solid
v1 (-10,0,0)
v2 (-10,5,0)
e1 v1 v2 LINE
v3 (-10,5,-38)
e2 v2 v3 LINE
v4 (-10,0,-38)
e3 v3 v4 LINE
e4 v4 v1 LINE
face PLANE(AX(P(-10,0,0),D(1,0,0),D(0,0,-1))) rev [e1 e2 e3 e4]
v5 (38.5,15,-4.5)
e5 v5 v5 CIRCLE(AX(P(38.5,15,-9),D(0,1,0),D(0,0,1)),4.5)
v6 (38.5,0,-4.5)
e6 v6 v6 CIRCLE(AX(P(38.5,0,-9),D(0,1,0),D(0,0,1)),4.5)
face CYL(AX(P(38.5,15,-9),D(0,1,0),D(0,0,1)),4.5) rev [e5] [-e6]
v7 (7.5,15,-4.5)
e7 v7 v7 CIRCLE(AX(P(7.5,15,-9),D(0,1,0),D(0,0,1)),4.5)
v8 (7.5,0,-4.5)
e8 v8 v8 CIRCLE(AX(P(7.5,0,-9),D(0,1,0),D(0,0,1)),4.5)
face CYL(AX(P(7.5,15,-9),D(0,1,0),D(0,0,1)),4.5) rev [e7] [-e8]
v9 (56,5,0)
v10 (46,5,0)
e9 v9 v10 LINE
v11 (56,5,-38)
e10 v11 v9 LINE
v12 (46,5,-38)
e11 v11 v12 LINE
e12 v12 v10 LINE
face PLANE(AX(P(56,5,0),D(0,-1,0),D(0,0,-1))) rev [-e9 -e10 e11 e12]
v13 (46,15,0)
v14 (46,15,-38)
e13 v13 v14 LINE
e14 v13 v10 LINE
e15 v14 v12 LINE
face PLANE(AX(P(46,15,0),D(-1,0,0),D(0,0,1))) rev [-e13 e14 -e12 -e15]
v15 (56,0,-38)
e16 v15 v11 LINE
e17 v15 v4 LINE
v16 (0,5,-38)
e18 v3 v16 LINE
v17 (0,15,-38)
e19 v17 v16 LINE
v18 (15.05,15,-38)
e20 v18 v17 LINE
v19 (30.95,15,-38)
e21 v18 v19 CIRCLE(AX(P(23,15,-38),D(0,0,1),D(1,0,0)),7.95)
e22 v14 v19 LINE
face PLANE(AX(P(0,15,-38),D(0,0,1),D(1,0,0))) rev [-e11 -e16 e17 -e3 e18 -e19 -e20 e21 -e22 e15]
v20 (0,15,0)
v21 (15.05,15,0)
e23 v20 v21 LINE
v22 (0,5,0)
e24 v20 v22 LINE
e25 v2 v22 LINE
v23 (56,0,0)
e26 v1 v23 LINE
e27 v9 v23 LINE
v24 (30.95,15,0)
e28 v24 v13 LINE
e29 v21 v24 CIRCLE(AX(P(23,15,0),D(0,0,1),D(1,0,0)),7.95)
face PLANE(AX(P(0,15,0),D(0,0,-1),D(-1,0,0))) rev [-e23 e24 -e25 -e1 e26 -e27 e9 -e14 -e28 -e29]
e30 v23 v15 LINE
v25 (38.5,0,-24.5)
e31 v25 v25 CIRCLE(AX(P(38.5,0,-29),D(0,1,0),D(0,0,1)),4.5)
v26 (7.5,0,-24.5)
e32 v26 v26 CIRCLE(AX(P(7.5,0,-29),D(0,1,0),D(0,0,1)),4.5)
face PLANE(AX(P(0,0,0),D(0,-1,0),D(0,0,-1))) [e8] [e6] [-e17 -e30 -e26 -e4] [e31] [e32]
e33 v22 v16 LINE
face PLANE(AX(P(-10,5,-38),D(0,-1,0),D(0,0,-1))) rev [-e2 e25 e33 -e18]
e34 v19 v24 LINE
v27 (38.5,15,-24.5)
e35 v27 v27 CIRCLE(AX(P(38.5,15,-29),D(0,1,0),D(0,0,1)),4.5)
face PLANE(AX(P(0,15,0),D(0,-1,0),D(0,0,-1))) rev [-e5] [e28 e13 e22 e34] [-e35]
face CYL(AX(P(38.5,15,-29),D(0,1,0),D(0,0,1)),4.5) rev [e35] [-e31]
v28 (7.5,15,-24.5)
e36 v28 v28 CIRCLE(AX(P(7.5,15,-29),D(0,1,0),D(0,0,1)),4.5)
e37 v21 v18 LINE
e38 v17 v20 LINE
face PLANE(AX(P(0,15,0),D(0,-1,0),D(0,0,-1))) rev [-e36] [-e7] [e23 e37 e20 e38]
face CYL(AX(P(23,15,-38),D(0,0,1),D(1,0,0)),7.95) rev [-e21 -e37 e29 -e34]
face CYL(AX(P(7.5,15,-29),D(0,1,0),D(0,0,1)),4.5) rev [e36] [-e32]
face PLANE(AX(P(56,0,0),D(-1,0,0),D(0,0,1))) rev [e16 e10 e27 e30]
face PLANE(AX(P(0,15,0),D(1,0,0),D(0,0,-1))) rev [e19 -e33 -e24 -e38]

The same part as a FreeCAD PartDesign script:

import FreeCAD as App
import Part
import Sketcher

V = App.Vector
Q = App.Units.Quantity

doc = App.newDocument("Part")
body = doc.addObject("PartDesign::Body", "Body")

sketch1 = body.newObject("Sketcher::SketchObject", "Sketch")
sketch1.AttachmentSupport = (doc.getObject("XZ_Plane"), [""])
sketch1.MapMode = "FlatFace"
sketch1.addGeometry([
    Part.LineSegment(V(0, -38, 0), V(0, 0, 0)),
    Part.LineSegment(V(0, 0, 0), V(46, 0, 0)),
    Part.LineSegment(V(46, 0, 0), V(46, -38, 0)),
    Part.LineSegment(V(46, -38, 0), V(0, -38, 0)),
], False)
sketch1.addConstraint([
    Sketcher.Constraint("Coincident", 0, 2, 1, 1),
    Sketcher.Constraint("Coincident", 1, 2, 2, 1),
    Sketcher.Constraint("Coincident", 2, 2, 3, 1),
    Sketcher.Constraint("Coincident", 3, 2, 0, 1),
    Sketcher.Constraint("Vertical", 0),
    Sketcher.Constraint("Horizontal", 1),
    Sketcher.Constraint("Vertical", 2),
    Sketcher.Constraint("Horizontal", 3),
    Sketcher.Constraint("Coincident", 0, 2, -1, 1),
    Sketcher.Constraint("DistanceX", 1, 1, 1, 2, Q("46 mm")),
    Sketcher.Constraint("DistanceY", 0, 1, 0, 2, Q("38 mm")),
])
pad1 = body.newObject("PartDesign::Pad", "Pad")
pad1.Profile = sketch1
pad1.Length = 15
pad1.Reversed = True

sketch2 = body.newObject("Sketcher::SketchObject", "Sketch001")
sketch2.AttachmentSupport = (doc.getObject("XZ_Plane"), [""])
sketch2.MapMode = "FlatFace"
sketch2.AttachmentOffset = App.Placement(V(0, 0, -15), App.Rotation())
sketch2.addGeometry([
    Part.Circle(V(7.5, -29, 0), V(0, 0, 1), 4.5),
    Part.Circle(V(38.5, -29, 0), V(0, 0, 1), 4.5),
    Part.Circle(V(38.5, -9, 0), V(0, 0, 1), 4.5),
    Part.Circle(V(7.5, -9, 0), V(0, 0, 1), 4.5),
], False)
sketch2.addConstraint([
    Sketcher.Constraint("Equal", 0, 1),
    Sketcher.Constraint("Equal", 1, 2),
    Sketcher.Constraint("Equal", 2, 3),
    Sketcher.Constraint("Horizontal", 0, 3, 1, 3),
    Sketcher.Constraint("Horizontal", 2, 3, 3, 3),
    Sketcher.Constraint("Vertical", 1, 3, 2, 3),
    Sketcher.Constraint("Vertical", 0, 3, 3, 3),
    Sketcher.Constraint("Diameter", 0, Q("9 mm")),
    Sketcher.Constraint("DistanceY", 0, 3, -1, 1, Q("29 mm")),
    Sketcher.Constraint("DistanceY", 2, 3, -1, 1, Q("9 mm")),
    Sketcher.Constraint("DistanceX", 0, 3, 1, 3, Q("31 mm")),
    Sketcher.Constraint("DistanceX", -1, 1, 0, 3, Q("7.5 mm")),
])
doc.recompute()
hole = body.newObject("PartDesign::Hole", "Hole")
hole.Profile = sketch2
hole.ThreadType = "None"
hole.Diameter = 9
hole.DepthType = "ThroughAll"
hole.Reversed = True

sketch3 = body.newObject("Sketcher::SketchObject", "Sketch002")
sketch3.AttachmentSupport = (doc.getObject("XY_Plane"), [""])
sketch3.MapMode = "FlatFace"
sketch3.addGeometry(Part.Circle(V(23, 15, 0), V(0, 0, 1), 8), False)
sketch3.addConstraint([
    Sketcher.Constraint("Diameter", 0, Q("15.9 mm")),
    Sketcher.Constraint("DistanceX", -1, 1, 0, 3, Q("23 mm")),
    Sketcher.Constraint("DistanceY", -1, 1, 0, 3, Q("15 mm")),
])
pocket1 = body.newObject("PartDesign::Pocket", "Pocket")
pocket1.Profile = sketch3
pocket1.Type = "ThroughAll"

sketch4 = body.newObject("Sketcher::SketchObject", "Sketch003")
sketch4.AttachmentSupport = (doc.getObject("YZ_Plane"), [""])
sketch4.MapMode = "FlatFace"
sketch4.AttachmentOffset = App.Placement(V(0, 0, 46), App.Rotation())
sketch4.addGeometry([
    Part.LineSegment(V(5, 0, 0), V(0, 0, 0)),
    Part.LineSegment(V(0, 0, 0), V(0, -38, 0)),
    Part.LineSegment(V(0, -38, 0), V(5, -38, 0)),
    Part.LineSegment(V(5, -38, 0), V(5, 0, 0)),
], False)
sketch4.addConstraint([
    Sketcher.Constraint("Coincident", 0, 2, 1, 1),
    Sketcher.Constraint("Coincident", 1, 2, 2, 1),
    Sketcher.Constraint("Coincident", 2, 2, 3, 1),
    Sketcher.Constraint("Coincident", 3, 2, 0, 1),
    Sketcher.Constraint("Horizontal", 0),
    Sketcher.Constraint("Vertical", 1),
    Sketcher.Constraint("Horizontal", 2),
    Sketcher.Constraint("Vertical", 3),
    Sketcher.Constraint("Coincident", 0, 2, -1, 1),
    Sketcher.Constraint("DistanceX", 0, 2, 0, 1, Q("5 mm")),
    Sketcher.Constraint("DistanceY", 1, 2, 1, 1, Q("38 mm")),
])
pad2 = body.newObject("PartDesign::Pad", "Pad001")
pad2.Profile = sketch4
pad2.Length = 10

sketch5 = body.newObject("Sketcher::SketchObject", "Sketch004")
sketch5.AttachmentSupport = (doc.getObject("YZ_Plane"), [""])
sketch5.MapMode = "FlatFace"
sketch5.addGeometry([
    Part.LineSegment(V(5, -38, 0), V(0, -38, 0)),
    Part.LineSegment(V(0, -38, 0), V(0, 0, 0)),
    Part.LineSegment(V(0, 0, 0), V(5, 0, 0)),
    Part.LineSegment(V(5, 0, 0), V(5, -38, 0)),
], False)
sketch5.addConstraint([
    Sketcher.Constraint("Coincident", 0, 2, 1, 1),
    Sketcher.Constraint("Coincident", 1, 2, 2, 1),
    Sketcher.Constraint("Coincident", 2, 2, 3, 1),
    Sketcher.Constraint("Coincident", 3, 2, 0, 1),
    Sketcher.Constraint("Horizontal", 0),
    Sketcher.Constraint("Vertical", 1),
    Sketcher.Constraint("Horizontal", 2),
    Sketcher.Constraint("Vertical", 3),
    Sketcher.Constraint("Coincident", 1, 2, -1, 1),
    Sketcher.Constraint("DistanceX", 0, 2, 0, 1, Q("5 mm")),
    Sketcher.Constraint("DistanceY", 1, 1, 1, 2, Q("38 mm")),
])
pad3 = body.newObject("PartDesign::Pad", "Pad002")
pad3.Profile = sketch5
pad3.Length = 10
pad3.Reversed = True

doc.recompute()
